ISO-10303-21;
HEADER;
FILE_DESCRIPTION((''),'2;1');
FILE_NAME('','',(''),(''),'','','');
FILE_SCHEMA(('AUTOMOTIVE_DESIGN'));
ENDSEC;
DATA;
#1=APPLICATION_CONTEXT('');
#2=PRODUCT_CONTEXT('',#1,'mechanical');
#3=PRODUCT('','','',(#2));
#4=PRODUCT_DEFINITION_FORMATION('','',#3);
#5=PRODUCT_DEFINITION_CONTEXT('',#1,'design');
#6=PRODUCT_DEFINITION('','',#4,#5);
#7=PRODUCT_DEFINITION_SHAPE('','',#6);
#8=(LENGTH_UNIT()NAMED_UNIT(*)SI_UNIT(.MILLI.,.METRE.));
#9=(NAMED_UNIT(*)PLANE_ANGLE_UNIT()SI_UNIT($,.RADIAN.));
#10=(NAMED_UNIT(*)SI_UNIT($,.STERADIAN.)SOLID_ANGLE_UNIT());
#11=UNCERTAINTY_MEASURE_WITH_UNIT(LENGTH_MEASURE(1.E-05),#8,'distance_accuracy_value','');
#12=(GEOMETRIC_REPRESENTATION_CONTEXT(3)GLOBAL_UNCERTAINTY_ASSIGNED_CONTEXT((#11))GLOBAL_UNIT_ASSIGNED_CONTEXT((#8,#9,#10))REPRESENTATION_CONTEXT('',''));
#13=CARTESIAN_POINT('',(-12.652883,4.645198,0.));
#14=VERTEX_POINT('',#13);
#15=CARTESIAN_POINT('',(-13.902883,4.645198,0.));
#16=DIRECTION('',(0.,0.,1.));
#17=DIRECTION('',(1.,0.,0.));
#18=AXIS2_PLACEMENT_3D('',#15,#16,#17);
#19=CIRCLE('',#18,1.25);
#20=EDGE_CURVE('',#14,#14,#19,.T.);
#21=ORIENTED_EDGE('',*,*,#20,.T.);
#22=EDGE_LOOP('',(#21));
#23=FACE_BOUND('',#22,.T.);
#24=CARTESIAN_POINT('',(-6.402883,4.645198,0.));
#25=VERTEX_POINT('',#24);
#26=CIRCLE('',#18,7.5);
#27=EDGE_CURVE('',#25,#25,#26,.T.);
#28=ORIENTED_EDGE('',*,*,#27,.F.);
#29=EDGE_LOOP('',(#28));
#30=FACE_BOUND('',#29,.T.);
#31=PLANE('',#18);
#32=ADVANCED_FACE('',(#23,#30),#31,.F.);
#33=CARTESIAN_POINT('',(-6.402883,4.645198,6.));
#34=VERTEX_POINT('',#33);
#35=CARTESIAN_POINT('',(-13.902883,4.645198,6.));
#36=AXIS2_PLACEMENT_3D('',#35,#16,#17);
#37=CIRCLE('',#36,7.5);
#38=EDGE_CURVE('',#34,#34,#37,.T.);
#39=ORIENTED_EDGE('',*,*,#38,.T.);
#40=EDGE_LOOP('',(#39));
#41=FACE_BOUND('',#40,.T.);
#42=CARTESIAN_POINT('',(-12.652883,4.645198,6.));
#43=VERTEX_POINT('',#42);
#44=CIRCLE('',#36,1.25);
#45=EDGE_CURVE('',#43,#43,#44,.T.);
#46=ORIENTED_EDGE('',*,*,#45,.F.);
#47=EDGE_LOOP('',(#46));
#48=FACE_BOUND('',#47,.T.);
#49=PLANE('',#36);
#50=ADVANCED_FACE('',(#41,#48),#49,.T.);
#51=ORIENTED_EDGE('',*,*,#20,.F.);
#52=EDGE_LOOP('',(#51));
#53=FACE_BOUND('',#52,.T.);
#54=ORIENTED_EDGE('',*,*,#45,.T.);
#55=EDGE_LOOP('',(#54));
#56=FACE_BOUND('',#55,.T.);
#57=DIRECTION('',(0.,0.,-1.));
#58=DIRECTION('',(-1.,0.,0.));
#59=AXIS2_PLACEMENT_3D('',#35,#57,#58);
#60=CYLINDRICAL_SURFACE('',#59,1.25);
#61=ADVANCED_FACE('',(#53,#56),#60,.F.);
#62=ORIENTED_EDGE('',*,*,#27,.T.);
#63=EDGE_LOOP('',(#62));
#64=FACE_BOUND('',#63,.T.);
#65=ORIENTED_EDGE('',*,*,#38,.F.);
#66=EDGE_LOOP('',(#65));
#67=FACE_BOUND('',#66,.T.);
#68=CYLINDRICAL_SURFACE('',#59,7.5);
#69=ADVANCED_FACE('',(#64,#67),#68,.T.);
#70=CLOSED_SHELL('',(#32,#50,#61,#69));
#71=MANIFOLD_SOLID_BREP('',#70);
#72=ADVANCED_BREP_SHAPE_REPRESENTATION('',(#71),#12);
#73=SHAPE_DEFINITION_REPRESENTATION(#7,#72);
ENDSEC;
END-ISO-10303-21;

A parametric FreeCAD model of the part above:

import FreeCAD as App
import Part
import Sketcher

doc = App.newDocument("Part")
body = doc.addObject("PartDesign::Body", "Body")

# Sketch on XY plane
sketch1 = doc.addObject("Sketcher::SketchObject", "Sketch")
body.addObject(sketch1)
sketch1.AttachmentSupport = (doc.XY_Plane, [""])
sketch1.MapMode = "FlatFace"
sketch1.addGeometry([
    Part.Circle(App.Vector(-13.9, 4.6, 0), App.Vector(0, 0, 1), 7.5),
    Part.Circle(App.Vector(-13.9, 4.6, 0), App.Vector(0, 0, 1), 1.2),
], False)
sketch1.addConstraint([
    Sketcher.Constraint("Coincident", 1, 3, 0, 3),
    Sketcher.Constraint("Diameter", 0, 15.0),
    Sketcher.Constraint("Diameter", 1, 2.5),
    Sketcher.Constraint("DistanceY", -1, 1, 0, 3, 4.645198),
    Sketcher.Constraint("DistanceX", 0, 3, -1, 1, 13.902883),
])
pad1 = doc.addObject("PartDesign::Pad", "Pad")
body.addObject(pad1)
pad1.Profile = sketch1
pad1.Length = 6

doc.recompute()
